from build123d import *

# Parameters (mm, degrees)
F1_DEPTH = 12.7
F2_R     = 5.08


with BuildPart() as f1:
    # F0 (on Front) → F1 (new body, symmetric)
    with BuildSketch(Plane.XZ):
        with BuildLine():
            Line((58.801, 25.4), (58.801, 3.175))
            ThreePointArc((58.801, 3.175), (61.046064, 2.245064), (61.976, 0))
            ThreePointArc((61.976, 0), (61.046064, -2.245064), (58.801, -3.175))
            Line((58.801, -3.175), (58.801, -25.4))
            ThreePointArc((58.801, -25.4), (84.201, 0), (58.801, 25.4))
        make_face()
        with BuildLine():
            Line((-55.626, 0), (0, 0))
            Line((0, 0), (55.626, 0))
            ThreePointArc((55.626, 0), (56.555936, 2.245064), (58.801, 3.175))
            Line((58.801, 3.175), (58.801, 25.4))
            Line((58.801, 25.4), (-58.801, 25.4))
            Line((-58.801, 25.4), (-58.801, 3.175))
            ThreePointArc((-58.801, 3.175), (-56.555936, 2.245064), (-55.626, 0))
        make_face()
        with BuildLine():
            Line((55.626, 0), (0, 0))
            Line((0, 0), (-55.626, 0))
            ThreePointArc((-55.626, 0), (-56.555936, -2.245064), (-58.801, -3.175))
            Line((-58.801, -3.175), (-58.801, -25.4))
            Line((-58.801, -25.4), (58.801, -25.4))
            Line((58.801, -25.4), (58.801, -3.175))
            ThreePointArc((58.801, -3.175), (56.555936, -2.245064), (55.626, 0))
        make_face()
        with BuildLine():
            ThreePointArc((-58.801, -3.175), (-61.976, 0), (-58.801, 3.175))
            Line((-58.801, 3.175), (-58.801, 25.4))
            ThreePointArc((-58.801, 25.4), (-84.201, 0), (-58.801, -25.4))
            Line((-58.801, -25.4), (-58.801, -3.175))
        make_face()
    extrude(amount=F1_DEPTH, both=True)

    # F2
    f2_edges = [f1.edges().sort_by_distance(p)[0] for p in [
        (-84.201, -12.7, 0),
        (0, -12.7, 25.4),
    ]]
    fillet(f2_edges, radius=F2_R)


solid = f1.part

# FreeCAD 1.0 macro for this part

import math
import FreeCAD as App
import Part
import Sketcher
Q = App.Units.Quantity


def edges_at(feature, points):
    """Names of the edges that pass closest to the given points."""
    edges = feature.Shape.Edges
    near = lambda p: min(range(len(edges)), key=lambda i: edges[i].distToShape(Part.Vertex(*p))[0])
    return sorted({f"Edge{near(p) + 1}" for p in points})

doc = App.newDocument("Part")
body = doc.addObject("PartDesign::Body", "Body")

# Sketch on XZ plane
sketch1 = body.newObject("Sketcher::SketchObject", "Sketch")
sketch1.AttachmentSupport = (doc.getObject("XZ_Plane"), [""])
sketch1.MapMode = "FlatFace"
sketch1.addGeometry([
    Part.ArcOfCircle(Part.Circle(App.Vector(58.8, 0, 0), App.Vector(0, 0, 1), 25.4), math.radians(-90), math.radians(90)),  # 0
    Part.LineSegment(App.Vector(58.8, 25.4, 0), App.Vector(-58.8, 25.4, 0)),  # 1
    Part.ArcOfCircle(Part.Circle(App.Vector(-58.8, 0, 0), App.Vector(0, 0, 1), 25.4), math.radians(90), math.radians(270)),  # 2
    Part.LineSegment(App.Vector(-58.8, -25.4, 0), App.Vector(58.8, -25.4, 0)),  # 3
    Part.ArcOfCircle(Part.Circle(App.Vector(58.8, 0, 0), App.Vector(0, 0, 1), 3.2), math.radians(0), math.radians(90)),  # 4
    Part.ArcOfCircle(Part.Circle(App.Vector(58.8, 0, 0), App.Vector(0, 0, 1), 3.2), math.radians(-90), math.radians(0)),  # 5
    Part.ArcOfCircle(Part.Circle(App.Vector(58.8, 0, 0), App.Vector(0, 0, 1), 3.2), math.radians(-180), math.radians(-90)),  # 6
    Part.ArcOfCircle(Part.Circle(App.Vector(58.8, 0, 0), App.Vector(0, 0, 1), 3.2), math.radians(90), math.radians(180)),  # 7
    Part.ArcOfCircle(Part.Circle(App.Vector(-58.8, 0, 0), App.Vector(0, 0, 1), 3.2), math.radians(0), math.radians(90)),  # 8
    Part.ArcOfCircle(Part.Circle(App.Vector(-58.8, 0, 0), App.Vector(0, 0, 1), 3.2), math.radians(-90), math.radians(0)),  # 9
    Part.ArcOfCircle(Part.Circle(App.Vector(-58.8, 0, 0), App.Vector(0, 0, 1), 3.2), math.radians(90), math.radians(270)),  # 10
], False)
sketch1.addConstraint([
    Sketcher.Constraint("Tangent", 0, 2, 1, 1),
    Sketcher.Constraint("Tangent", 1, 2, 2, 1),
    Sketcher.Constraint("Tangent", 2, 2, 3, 1),
    Sketcher.Constraint("Tangent", 3, 2, 0, 1),
    Sketcher.Constraint("Tangent", 4, 1, 5, 2),
    Sketcher.Constraint("Tangent", 5, 1, 6, 2),
    Sketcher.Constraint("Tangent", 6, 1, 7, 2),
    Sketcher.Constraint("Tangent", 7, 1, 4, 2),
    Sketcher.Constraint("Tangent", 8, 1, 9, 2),
    Sketcher.Constraint("Tangent", 9, 1, 10, 2),
    Sketcher.Constraint("Tangent", 10, 1, 8, 2),
    Sketcher.Constraint("Horizontal", 1),
    Sketcher.Constraint("Horizontal", 3),
    Sketcher.Constraint("Coincident", 4, 3, 0, 3),
    Sketcher.Constraint("Coincident", 8, 3, 2, 3),
    Sketcher.Constraint("Equal", 4, 5),
    Sketcher.Constraint("Equal", 7, 8),
    Sketcher.Constraint("Symmetric", 0, 3, 2, 3, -1, 1),
    Sketcher.Constraint("PointOnObject", 4, 1, -1),
    Sketcher.Constraint("PointOnObject", 6, 1, -1),
    Sketcher.Constraint("PointOnObject", 8, 1, -1),
    Sketcher.Constraint("Vertical", 3, 2, 5, 1),
    Sketcher.Constraint("Vertical", 5, 1, 7, 1),
    Sketcher.Constraint("Vertical", 2, 2, 9, 1),
    Sketcher.Constraint("Vertical", 9, 1, 10, 1),
    Sketcher.Constraint("Radius", 0, Q("1 in")),
    Sketcher.Constraint("Radius", 4, Q("0.125 in")),
    Sketcher.Constraint("DistanceX", 1, 2, 1, 1, Q("4.63 in")),
])
pad1 = body.newObject("PartDesign::Pad", "Pad")
pad1.Profile = sketch1
pad1.Length = Q("1 in")
pad1.Midplane = True
doc.recompute()

fillet = body.newObject("PartDesign::Fillet", "Fillet")
fillet.Base = (pad1, edges_at(pad1, [(-84.201, -12.7, 0), (0, -12.7, 25.4)]))
fillet.Radius = Q("0.2 in")

doc.recompute()
